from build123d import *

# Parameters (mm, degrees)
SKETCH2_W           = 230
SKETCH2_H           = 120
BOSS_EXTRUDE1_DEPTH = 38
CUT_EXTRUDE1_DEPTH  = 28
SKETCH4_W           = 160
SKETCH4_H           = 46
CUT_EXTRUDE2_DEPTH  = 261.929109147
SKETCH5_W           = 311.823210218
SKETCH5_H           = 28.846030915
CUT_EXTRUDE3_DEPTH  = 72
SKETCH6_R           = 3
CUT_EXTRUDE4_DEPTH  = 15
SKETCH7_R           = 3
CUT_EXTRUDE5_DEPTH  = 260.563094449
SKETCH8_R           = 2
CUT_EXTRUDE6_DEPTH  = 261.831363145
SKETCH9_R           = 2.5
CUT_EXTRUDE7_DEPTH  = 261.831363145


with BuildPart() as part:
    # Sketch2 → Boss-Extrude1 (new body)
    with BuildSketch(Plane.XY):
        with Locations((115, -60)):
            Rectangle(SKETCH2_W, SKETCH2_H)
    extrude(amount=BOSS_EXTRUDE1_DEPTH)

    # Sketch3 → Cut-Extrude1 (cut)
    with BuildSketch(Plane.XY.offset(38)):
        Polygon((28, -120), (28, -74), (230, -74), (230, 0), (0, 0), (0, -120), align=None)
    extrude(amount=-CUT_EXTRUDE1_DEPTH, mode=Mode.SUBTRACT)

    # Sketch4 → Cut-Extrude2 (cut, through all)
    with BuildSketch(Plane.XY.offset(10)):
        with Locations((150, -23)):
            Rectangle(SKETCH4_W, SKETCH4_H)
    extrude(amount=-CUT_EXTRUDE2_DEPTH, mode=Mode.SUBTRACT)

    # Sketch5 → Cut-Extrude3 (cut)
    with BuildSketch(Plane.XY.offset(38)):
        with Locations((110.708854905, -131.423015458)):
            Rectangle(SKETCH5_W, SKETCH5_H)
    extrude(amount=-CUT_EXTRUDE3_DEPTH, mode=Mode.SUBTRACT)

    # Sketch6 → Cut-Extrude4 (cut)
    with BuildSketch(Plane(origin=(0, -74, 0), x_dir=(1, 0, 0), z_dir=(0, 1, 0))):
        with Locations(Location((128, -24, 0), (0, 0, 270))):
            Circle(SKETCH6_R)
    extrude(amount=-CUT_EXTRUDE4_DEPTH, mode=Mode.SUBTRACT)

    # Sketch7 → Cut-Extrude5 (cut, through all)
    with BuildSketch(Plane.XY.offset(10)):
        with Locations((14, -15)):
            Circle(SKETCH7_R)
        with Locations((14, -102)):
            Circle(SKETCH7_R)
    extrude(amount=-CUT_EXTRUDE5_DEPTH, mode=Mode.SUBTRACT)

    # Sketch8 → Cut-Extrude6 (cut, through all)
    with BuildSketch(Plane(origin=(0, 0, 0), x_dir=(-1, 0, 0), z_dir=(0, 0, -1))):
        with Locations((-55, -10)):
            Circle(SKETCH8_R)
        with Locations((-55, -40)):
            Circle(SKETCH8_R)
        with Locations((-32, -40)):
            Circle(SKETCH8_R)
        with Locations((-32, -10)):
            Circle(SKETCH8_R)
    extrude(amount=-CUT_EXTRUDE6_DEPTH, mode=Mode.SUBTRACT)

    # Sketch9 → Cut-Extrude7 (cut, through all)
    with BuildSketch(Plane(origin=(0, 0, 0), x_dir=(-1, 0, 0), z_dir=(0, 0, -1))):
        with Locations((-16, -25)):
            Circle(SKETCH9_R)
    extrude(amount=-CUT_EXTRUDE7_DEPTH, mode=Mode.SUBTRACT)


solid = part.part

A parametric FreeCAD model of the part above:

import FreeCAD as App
import Part
import Sketcher
from FreeCAD import Vector
Q = App.Units.Quantity


def add_polygon(sketch, points):
    """Adds a closed chain of lines whose ends are joined by coincident constraints."""
    first, n = sketch.GeometryCount, len(points)
    for a, b in zip(points, points[1:] + points[:1]):
        sketch.addGeometry(Part.LineSegment(App.Vector(*a, 0), App.Vector(*b, 0)), False)
    for i in range(n):
        sketch.addConstraint(Sketcher.Constraint("Coincident", first + i, 2, first + (i + 1) % n, 1))

doc = App.newDocument("Part")
body = doc.addObject("PartDesign::Body", "Body")

sketch1 = doc.addObject("Sketcher::SketchObject", "Sketch")
body.addObject(sketch1)
sketch1.AttachmentSupport = (doc.XY_Plane, [""])
sketch1.MapMode = "FlatFace"
add_polygon(sketch1, [(0, 0), (0, -120), (230, -120), (230, 0)])
sketch1.addConstraint(Sketcher.Constraint("Vertical", 0))
sketch1.addConstraint(Sketcher.Constraint("Horizontal", 1))
sketch1.addConstraint(Sketcher.Constraint("Vertical", 2))
sketch1.addConstraint(Sketcher.Constraint("Horizontal", 3))
sketch1.addConstraint(Sketcher.Constraint("Coincident", 3, 2, -1, 1))
sketch1.addConstraint(Sketcher.Constraint("DistanceX", 1, 1, 1, 2, Q("230 mm")))
sketch1.addConstraint(Sketcher.Constraint("DistanceY", 0, 2, 0, 1, Q("120 mm")))
pad1 = doc.addObject("PartDesign::Pad", "Pad")
body.addObject(pad1)
pad1.Profile = sketch1
pad1.Length = 38

sketch2 = doc.addObject("Sketcher::SketchObject", "Sketch001")
body.addObject(sketch2)
sketch2.AttachmentSupport = (doc.XY_Plane, [""])
sketch2.MapMode = "FlatFace"
sketch2.AttachmentOffset = App.Placement(Vector(0, 0, 38), App.Rotation())
add_polygon(sketch2, [(28, -120), (28, -74), (230, -74), (230, 0), (0, 0), (0, -120)])
sketch2.addConstraint(Sketcher.Constraint("Vertical", 0))
sketch2.addConstraint(Sketcher.Constraint("Horizontal", 1))
sketch2.addConstraint(Sketcher.Constraint("Vertical", 2))
sketch2.addConstraint(Sketcher.Constraint("Horizontal", 3))
sketch2.addConstraint(Sketcher.Constraint("Vertical", 4))
sketch2.addConstraint(Sketcher.Constraint("Horizontal", 5))
sketch2.addConstraint(Sketcher.Constraint("Coincident", 3, 2, -1, 1))
sketch2.addConstraint(Sketcher.Constraint("DistanceX", 1, 1, 1, 2, Q("202 mm")))
sketch2.addConstraint(Sketcher.Constraint("DistanceX", 3, 2, 3, 1, Q("230 mm")))
sketch2.addConstraint(Sketcher.Constraint("DistanceY", 0, 1, 0, 2, Q("46 mm")))
sketch2.addConstraint(Sketcher.Constraint("DistanceY", 2, 1, 2, 2, Q("74 mm")))
pocket1 = doc.addObject("PartDesign::Pocket", "Pocket")
body.addObject(pocket1)
pocket1.Profile = sketch2
pocket1.Length = 28

sketch3 = doc.addObject("Sketcher::SketchObject", "Sketch002")
body.addObject(sketch3)
sketch3.AttachmentSupport = (doc.XY_Plane, [""])
sketch3.MapMode = "FlatFace"
sketch3.AttachmentOffset = App.Placement(Vector(0, 0, 10), App.Rotation())
add_polygon(sketch3, [(70, 0), (70, -46), (230, -46), (230, 0)])
sketch3.addConstraint(Sketcher.Constraint("Vertical", 0))
sketch3.addConstraint(Sketcher.Constraint("Horizontal", 1))
sketch3.addConstraint(Sketcher.Constraint("Vertical", 2))
sketch3.addConstraint(Sketcher.Constraint("Horizontal", 3))
sketch3.addConstraint(Sketcher.Constraint("PointOnObject", 2, 2, -1))
sketch3.addConstraint(Sketcher.Constraint("DistanceX", 1, 1, 1, 2, Q("160 mm")))
sketch3.addConstraint(Sketcher.Constraint("DistanceY", 0, 2, 0, 1, Q("46 mm")))
sketch3.addConstraint(Sketcher.Constraint("DistanceX", -1, 1, 0, 2, Q("70 mm")))
pocket2 = doc.addObject("PartDesign::Pocket", "Pocket001")
body.addObject(pocket2)
pocket2.Profile = sketch3
pocket2.Type = "ThroughAll"

sketch4 = doc.addObject("Sketcher::SketchObject", "Sketch003")
body.addObject(sketch4)
sketch4.AttachmentSupport = (doc.XY_Plane, [""])
sketch4.MapMode = "FlatFace"
sketch4.AttachmentOffset = App.Placement(Vector(0, 0, 38), App.Rotation())
add_polygon(sketch4, [(-45, -117), (-45, -146), (267, -146), (267, -117)])
sketch4.addConstraint(Sketcher.Constraint("Vertical", 0))
sketch4.addConstraint(Sketcher.Constraint("Horizontal", 1))
sketch4.addConstraint(Sketcher.Constraint("Vertical", 2))
sketch4.addConstraint(Sketcher.Constraint("Horizontal", 3))
sketch4.addConstraint(Sketcher.Constraint("DistanceY", 2, 2, -1, 1, Q("117 mm")))
sketch4.addConstraint(Sketcher.Constraint("DistanceX", 1, 1, 1, 2, Q("311.82321 mm")))
sketch4.addConstraint(Sketcher.Constraint("DistanceY", 0, 2, 0, 1, Q("28.846031 mm")))
sketch4.addConstraint(Sketcher.Constraint("DistanceX", 0, 2, -1, 1, Q("45.20275 mm")))
pocket3 = doc.addObject("PartDesign::Pocket", "Pocket002")
body.addObject(pocket3)
pocket3.Profile = sketch4
pocket3.Length = 72

sketch5 = doc.addObject("Sketcher::SketchObject", "Sketch004")
body.addObject(sketch5)
sketch5.AttachmentSupport = (doc.XZ_Plane, [""])
sketch5.MapMode = "FlatFace"
sketch5.AttachmentOffset = App.Placement(Vector(0, 0, 74), App.Rotation())
sketch5.addGeometry(Part.Circle(Vector(128, 24, 0), Vector(0, 0, 1), 3), False)
sketch5.addConstraint(Sketcher.Constraint("Diameter", 0, Q("6 mm")))
sketch5.addConstraint(Sketcher.Constraint("DistanceX", -1, 1, 0, 3, Q("128 mm")))
sketch5.addConstraint(Sketcher.Constraint("DistanceY", -1, 1, 0, 3, Q("24 mm")))
pocket4 = doc.addObject("PartDesign::Pocket", "Pocket003")
body.addObject(pocket4)
pocket4.Profile = sketch5
pocket4.Length = 15
pocket4.Reversed = True

sketch6 = doc.addObject("Sketcher::SketchObject", "Sketch005")
body.addObject(sketch6)
sketch6.AttachmentSupport = (doc.XY_Plane, [""])
sketch6.MapMode = "FlatFace"
sketch6.AttachmentOffset = App.Placement(Vector(0, 0, 10), App.Rotation())
sketch6.addGeometry(Part.Circle(Vector(14, -15, 0), Vector(0, 0, 1), 3), False)
sketch6.addGeometry(Part.Circle(Vector(14, -102, 0), Vector(0, 0, 1), 3), False)
sketch6.addConstraint(Sketcher.Constraint("Equal", 0, 1))
sketch6.addConstraint(Sketcher.Constraint("Vertical", 0, 3, 1, 3))
sketch6.addConstraint(Sketcher.Constraint("Diameter", 0, Q("6 mm")))
sketch6.addConstraint(Sketcher.Constraint("DistanceX", -1, 1, 0, 3, Q("14 mm")))
sketch6.addConstraint(Sketcher.Constraint("DistanceY", 0, 3, -1, 1, Q("15 mm")))
sketch6.addConstraint(Sketcher.Constraint("DistanceY", 1, 3, -1, 1, Q("102 mm")))
pocket5 = doc.addObject("PartDesign::Pocket", "Pocket004")
body.addObject(pocket5)
pocket5.Profile = sketch6
pocket5.Type = "ThroughAll"

sketch7 = doc.addObject("Sketcher::SketchObject", "Sketch006")
body.addObject(sketch7)
sketch7.AttachmentSupport = (doc.XY_Plane, [""])
sketch7.MapMode = "FlatFace"
sketch7.addGeometry(Part.Circle(Vector(55, -10, 0), Vector(0, 0, 1), 2), False)
sketch7.addGeometry(Part.Circle(Vector(55, -40, 0), Vector(0, 0, 1), 2), False)
sketch7.addGeometry(Part.Circle(Vector(32, -40, 0), Vector(0, 0, 1), 2), False)
sketch7.addGeometry(Part.Circle(Vector(32, -10, 0), Vector(0, 0, 1), 2), False)
sketch7.addConstraint(Sketcher.Constraint("Equal", 0, 1))
sketch7.addConstraint(Sketcher.Constraint("Equal", 1, 2))
sketch7.addConstraint(Sketcher.Constraint("Equal", 2, 3))
sketch7.addConstraint(Sketcher.Constraint("Horizontal", 1, 3, 2, 3))
sketch7.addConstraint(Sketcher.Constraint("Horizontal", 0, 3, 3, 3))
sketch7.addConstraint(Sketcher.Constraint("Vertical", 0, 3, 1, 3))
sketch7.addConstraint(Sketcher.Constraint("Vertical", 2, 3, 3, 3))
sketch7.addConstraint(Sketcher.Constraint("Diameter", 0, Q("4 mm")))
sketch7.addConstraint(Sketcher.Constraint("DistanceX", -1, 1, 0, 3, Q("55 mm")))
sketch7.addConstraint(Sketcher.Constraint("DistanceY", 0, 3, -1, 1, Q("10 mm")))
sketch7.addConstraint(Sketcher.Constraint("DistanceY", 1, 3, -1, 1, Q("40 mm")))
sketch7.addConstraint(Sketcher.Constraint("DistanceX", -1, 1, 2, 3, Q("32 mm")))
pocket6 = doc.addObject("PartDesign::Pocket", "Pocket005")
body.addObject(pocket6)
pocket6.Profile = sketch7
pocket6.Type = "ThroughAll"
pocket6.Reversed = True

sketch8 = doc.addObject("Sketcher::SketchObject", "Sketch007")
body.addObject(sketch8)
sketch8.AttachmentSupport = (doc.XY_Plane, [""])
sketch8.MapMode = "FlatFace"
sketch8.addGeometry(Part.Circle(Vector(16, -25, 0), Vector(0, 0, 1), 2.5), False)
sketch8.addConstraint(Sketcher.Constraint("Diameter", 0, Q("5 mm")))
sketch8.addConstraint(Sketcher.Constraint("DistanceX", -1, 1, 0, 3, Q("16 mm")))
sketch8.addConstraint(Sketcher.Constraint("DistanceY", 0, 3, -1, 1, Q("25 mm")))
pocket7 = doc.addObject("PartDesign::Pocket", "Pocket006")
body.addObject(pocket7)
pocket7.Profile = sketch8
pocket7.Type = "ThroughAll"
pocket7.Reversed = True

doc.recompute()
